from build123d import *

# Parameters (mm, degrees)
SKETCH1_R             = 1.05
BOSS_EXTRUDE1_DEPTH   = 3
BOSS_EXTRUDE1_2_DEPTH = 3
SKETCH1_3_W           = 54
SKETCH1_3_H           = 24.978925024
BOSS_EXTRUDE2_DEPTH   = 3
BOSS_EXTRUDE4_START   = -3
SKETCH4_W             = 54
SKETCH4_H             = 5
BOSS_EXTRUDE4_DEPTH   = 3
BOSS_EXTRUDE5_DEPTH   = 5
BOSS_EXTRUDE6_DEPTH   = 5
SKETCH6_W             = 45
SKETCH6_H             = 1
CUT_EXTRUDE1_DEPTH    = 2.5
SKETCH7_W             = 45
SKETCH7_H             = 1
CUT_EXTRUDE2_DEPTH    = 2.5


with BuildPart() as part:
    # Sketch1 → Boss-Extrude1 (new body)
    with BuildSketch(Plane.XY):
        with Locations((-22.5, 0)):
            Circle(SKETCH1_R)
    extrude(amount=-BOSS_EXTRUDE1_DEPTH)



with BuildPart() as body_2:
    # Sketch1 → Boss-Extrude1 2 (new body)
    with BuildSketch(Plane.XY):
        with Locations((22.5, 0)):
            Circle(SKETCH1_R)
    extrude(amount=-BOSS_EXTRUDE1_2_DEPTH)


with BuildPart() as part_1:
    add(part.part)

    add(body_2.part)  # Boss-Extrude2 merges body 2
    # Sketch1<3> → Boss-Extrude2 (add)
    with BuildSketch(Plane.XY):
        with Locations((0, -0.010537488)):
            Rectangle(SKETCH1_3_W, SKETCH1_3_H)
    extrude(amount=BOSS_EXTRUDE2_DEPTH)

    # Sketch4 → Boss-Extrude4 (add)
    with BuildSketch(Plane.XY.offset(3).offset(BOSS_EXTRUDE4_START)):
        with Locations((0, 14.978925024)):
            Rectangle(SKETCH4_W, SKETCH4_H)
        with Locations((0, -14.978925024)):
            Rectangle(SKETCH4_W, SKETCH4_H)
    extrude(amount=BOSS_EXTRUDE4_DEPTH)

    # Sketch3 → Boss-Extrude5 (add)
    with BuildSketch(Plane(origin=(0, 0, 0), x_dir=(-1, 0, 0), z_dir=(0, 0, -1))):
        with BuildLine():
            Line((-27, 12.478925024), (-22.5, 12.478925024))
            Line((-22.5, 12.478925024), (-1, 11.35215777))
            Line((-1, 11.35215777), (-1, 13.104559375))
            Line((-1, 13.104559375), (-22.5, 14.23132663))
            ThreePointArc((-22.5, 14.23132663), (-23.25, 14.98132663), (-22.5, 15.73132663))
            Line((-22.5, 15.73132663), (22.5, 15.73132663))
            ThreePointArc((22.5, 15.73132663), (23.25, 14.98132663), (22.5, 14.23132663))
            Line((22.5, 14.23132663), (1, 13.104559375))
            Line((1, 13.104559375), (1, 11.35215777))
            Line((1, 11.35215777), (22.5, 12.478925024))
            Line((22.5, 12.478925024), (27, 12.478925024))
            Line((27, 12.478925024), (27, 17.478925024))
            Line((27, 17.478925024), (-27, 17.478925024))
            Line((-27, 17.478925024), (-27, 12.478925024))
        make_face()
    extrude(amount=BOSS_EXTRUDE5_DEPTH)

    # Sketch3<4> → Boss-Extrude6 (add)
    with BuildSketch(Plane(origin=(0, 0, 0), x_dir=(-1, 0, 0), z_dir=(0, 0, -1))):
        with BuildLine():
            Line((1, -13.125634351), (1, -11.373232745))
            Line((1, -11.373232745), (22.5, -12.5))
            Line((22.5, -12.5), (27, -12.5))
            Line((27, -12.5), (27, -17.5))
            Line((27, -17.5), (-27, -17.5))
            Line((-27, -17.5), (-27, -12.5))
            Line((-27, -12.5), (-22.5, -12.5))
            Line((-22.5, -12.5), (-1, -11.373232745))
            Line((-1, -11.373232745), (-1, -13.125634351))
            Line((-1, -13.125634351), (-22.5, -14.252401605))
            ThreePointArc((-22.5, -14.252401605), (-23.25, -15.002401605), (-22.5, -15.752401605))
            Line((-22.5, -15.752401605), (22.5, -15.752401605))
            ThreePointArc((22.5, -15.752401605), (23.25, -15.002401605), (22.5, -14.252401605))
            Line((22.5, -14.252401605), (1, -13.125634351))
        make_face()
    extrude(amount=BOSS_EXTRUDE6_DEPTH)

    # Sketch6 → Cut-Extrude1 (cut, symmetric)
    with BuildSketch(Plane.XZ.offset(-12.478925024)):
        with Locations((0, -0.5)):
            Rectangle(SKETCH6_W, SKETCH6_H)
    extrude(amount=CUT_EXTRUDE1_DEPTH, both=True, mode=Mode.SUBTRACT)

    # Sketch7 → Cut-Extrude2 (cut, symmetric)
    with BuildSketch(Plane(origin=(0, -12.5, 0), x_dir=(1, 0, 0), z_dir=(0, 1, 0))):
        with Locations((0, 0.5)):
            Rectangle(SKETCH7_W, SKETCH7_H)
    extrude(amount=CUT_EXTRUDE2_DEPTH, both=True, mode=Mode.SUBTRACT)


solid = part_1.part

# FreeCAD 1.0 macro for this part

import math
import FreeCAD as App
import Part
import Sketcher
Q = App.Units.Quantity

doc = App.newDocument("Part")
body = doc.addObject("PartDesign::Body", "Body")

# Sketch on XY plane
sketch1 = body.newObject("Sketcher::SketchObject", "Sketch")
sketch1.AttachmentSupport = (doc.getObject("XY_Plane"), [""])
sketch1.MapMode = "FlatFace"
sketch1.addGeometry(Part.Circle(App.Vector(-22.5, 0, 0), App.Vector(0, 0, 1), 1.05), False)
sketch1.addConstraint(Sketcher.Constraint("PointOnObject", 0, 3, -1))
sketch1.addConstraint(Sketcher.Constraint("Diameter", 0, Q("2.1 mm")))
sketch1.addConstraint(Sketcher.Constraint("DistanceX", 0, 3, -1, 1, Q("22.5 mm")))
pad1 = body.newObject("PartDesign::Pad", "Pad")
pad1.Profile = sketch1
pad1.Length = 3
pad1.Reversed = True
body2 = doc.addObject("PartDesign::Body", "Body001")

# Sketch on XY plane
sketch2 = body2.newObject("Sketcher::SketchObject", "Sketch001")
sketch2.AttachmentSupport = (doc.getObject("XY_Plane001"), [""])
sketch2.MapMode = "FlatFace"
sketch2.addGeometry(Part.Circle(App.Vector(22.5, 0, 0), App.Vector(0, 0, 1), 1.05), False)
sketch2.addConstraint(Sketcher.Constraint("PointOnObject", 0, 3, -1))
sketch2.addConstraint(Sketcher.Constraint("Diameter", 0, Q("2.1 mm")))
sketch2.addConstraint(Sketcher.Constraint("DistanceX", -1, 1, 0, 3, Q("22.5 mm")))
pad2 = body2.newObject("PartDesign::Pad", "Pad001")
pad2.Profile = sketch2
pad2.Length = 3
pad2.Reversed = True
body.AllowCompound = True
doc.recompute()

boolean = body.newObject("PartDesign::Boolean", "Boolean")
boolean.Type = "Fuse"
boolean.addObjects([body2])

# Sketch on XY plane
sketch3 = body.newObject("Sketcher::SketchObject", "Sketch002")
sketch3.AttachmentSupport = (doc.getObject("XY_Plane"), [""])
sketch3.MapMode = "FlatFace"
sketch3.addGeometry(Part.LineSegment(App.Vector(-27, 12.478925, 0), App.Vector(-27, -12.5, 0)), False)
sketch3.addGeometry(Part.LineSegment(App.Vector(-27, -12.5, 0), App.Vector(27, -12.5, 0)), False)
sketch3.addGeometry(Part.LineSegment(App.Vector(27, -12.5, 0), App.Vector(27, 12.478925, 0)), False)
sketch3.addGeometry(Part.LineSegment(App.Vector(27, 12.478925, 0), App.Vector(-27, 12.478925, 0)), False)
sketch3.addConstraint(Sketcher.Constraint("Coincident", 0, 2, 1, 1))
sketch3.addConstraint(Sketcher.Constraint("Coincident", 1, 2, 2, 1))
sketch3.addConstraint(Sketcher.Constraint("Coincident", 2, 2, 3, 1))
sketch3.addConstraint(Sketcher.Constraint("Coincident", 3, 2, 0, 1))
sketch3.addConstraint(Sketcher.Constraint("Vertical", 0))
sketch3.addConstraint(Sketcher.Constraint("Horizontal", 1))
sketch3.addConstraint(Sketcher.Constraint("Vertical", 2))
sketch3.addConstraint(Sketcher.Constraint("Horizontal", 3))
sketch3.addConstraint(Sketcher.Constraint("DistanceX", 1, 1, 1, 2, Q("54 mm")))
sketch3.addConstraint(Sketcher.Constraint("DistanceX", 0, 2, -1, 1, Q("27 mm")))
sketch3.addConstraint(Sketcher.Constraint("DistanceY", 0, 2, -1, 1, Q("12.5 mm")))
sketch3.addConstraint(Sketcher.Constraint("DistanceY", 0, 2, 0, 1, Q("24.978925 mm")))
pad3 = body.newObject("PartDesign::Pad", "Pad002")
pad3.Profile = sketch3
pad3.Length = 3

# Sketch on XY plane
sketch4 = body.newObject("Sketcher::SketchObject", "Sketch003")
sketch4.AttachmentSupport = (doc.getObject("XY_Plane"), [""])
sketch4.MapMode = "FlatFace"
sketch4.addGeometry(Part.LineSegment(App.Vector(-27, 17.478925, 0), App.Vector(-27, 12.478925, 0)), False)
sketch4.addGeometry(Part.LineSegment(App.Vector(-27, 12.478925, 0), App.Vector(27, 12.478925, 0)), False)
sketch4.addGeometry(Part.LineSegment(App.Vector(27, 12.478925, 0), App.Vector(27, 17.478925, 0)), False)
sketch4.addGeometry(Part.LineSegment(App.Vector(27, 17.478925, 0), App.Vector(-27, 17.478925, 0)), False)
sketch4.addGeometry(Part.LineSegment(App.Vector(-27, -12.478925, 0), App.Vector(-27, -17.478925, 0)), False)
sketch4.addGeometry(Part.LineSegment(App.Vector(-27, -17.478925, 0), App.Vector(27, -17.478925, 0)), False)
sketch4.addGeometry(Part.LineSegment(App.Vector(27, -17.478925, 0), App.Vector(27, -12.478925, 0)), False)
sketch4.addGeometry(Part.LineSegment(App.Vector(27, -12.478925, 0), App.Vector(-27, -12.478925, 0)), False)
sketch4.addConstraint(Sketcher.Constraint("Coincident", 0, 2, 1, 1))
sketch4.addConstraint(Sketcher.Constraint("Coincident", 1, 2, 2, 1))
sketch4.addConstraint(Sketcher.Constraint("Coincident", 2, 2, 3, 1))
sketch4.addConstraint(Sketcher.Constraint("Coincident", 3, 2, 0, 1))
sketch4.addConstraint(Sketcher.Constraint("Coincident", 4, 2, 5, 1))
sketch4.addConstraint(Sketcher.Constraint("Coincident", 5, 2, 6, 1))
sketch4.addConstraint(Sketcher.Constraint("Coincident", 6, 2, 7, 1))
sketch4.addConstraint(Sketcher.Constraint("Coincident", 7, 2, 4, 1))
sketch4.addConstraint(Sketcher.Constraint("Vertical", 0))
sketch4.addConstraint(Sketcher.Constraint("Horizontal", 1))
sketch4.addConstraint(Sketcher.Constraint("Vertical", 2))
sketch4.addConstraint(Sketcher.Constraint("Horizontal", 3))
sketch4.addConstraint(Sketcher.Constraint("Vertical", 4))
sketch4.addConstraint(Sketcher.Constraint("Horizontal", 5))
sketch4.addConstraint(Sketcher.Constraint("Vertical", 6))
sketch4.addConstraint(Sketcher.Constraint("Horizontal", 7))
sketch4.addConstraint(Sketcher.Constraint("Symmetric", 2, 2, 4, 2, -1, 1))
sketch4.addConstraint(Sketcher.Constraint("Symmetric", 0, 2, 6, 2, -1, 1))
sketch4.addConstraint(Sketcher.Constraint("Vertical", 3, 2, 4, 2))
sketch4.addConstraint(Sketcher.Constraint("DistanceX", 1, 1, 1, 2, Q("54 mm")))
sketch4.addConstraint(Sketcher.Constraint("DistanceY", 0, 2, 0, 1, Q("5 mm")))
sketch4.addConstraint(Sketcher.Constraint("DistanceY", 4, 2, 0, 2, Q("29.95785 mm")))
pad4 = body.newObject("PartDesign::Pad", "Pad003")
pad4.Profile = sketch4
pad4.Length = 3

# Sketch on XY plane
sketch5 = body.newObject("Sketcher::SketchObject", "Sketch004")
sketch5.AttachmentSupport = (doc.getObject("XY_Plane"), [""])
sketch5.MapMode = "FlatFace"
sketch5.addGeometry(Part.LineSegment(App.Vector(27, 12.478925, 0), App.Vector(22.5, 12.478925, 0)), False)
sketch5.addGeometry(Part.LineSegment(App.Vector(22.5, 12.478925, 0), App.Vector(1, 11.352158, 0)), False)
sketch5.addGeometry(Part.LineSegment(App.Vector(1, 11.352158, 0), App.Vector(1, 13.104559, 0)), False)
sketch5.addGeometry(Part.LineSegment(App.Vector(1, 13.104559, 0), App.Vector(22.5, 14.231327, 0)), False)
sketch5.addGeometry(Part.ArcOfCircle(Part.Circle(App.Vector(22.5, 14.981327, 0), App.Vector(0, 0, 1), 0.75), math.radians(-90), math.radians(90)), False)
sketch5.addGeometry(Part.LineSegment(App.Vector(22.5, 15.731327, 0), App.Vector(-22.5, 15.731327, 0)), False)
sketch5.addGeometry(Part.ArcOfCircle(Part.Circle(App.Vector(-22.5, 14.981327, 0), App.Vector(0, 0, 1), 0.75), math.radians(90), math.radians(270)), False)
sketch5.addGeometry(Part.LineSegment(App.Vector(-22.5, 14.231327, 0), App.Vector(-1, 13.104559, 0)), False)
sketch5.addGeometry(Part.LineSegment(App.Vector(-1, 13.104559, 0), App.Vector(-1, 11.352158, 0)), False)
sketch5.addGeometry(Part.LineSegment(App.Vector(-1, 11.352158, 0), App.Vector(-22.5, 12.478925, 0)), False)
sketch5.addGeometry(Part.LineSegment(App.Vector(-22.5, 12.478925, 0), App.Vector(-27, 12.478925, 0)), False)
sketch5.addGeometry(Part.LineSegment(App.Vector(-27, 12.478925, 0), App.Vector(-27, 17.478925, 0)), False)
sketch5.addGeometry(Part.LineSegment(App.Vector(-27, 17.478925, 0), App.Vector(27, 17.478925, 0)), False)
sketch5.addGeometry(Part.LineSegment(App.Vector(27, 17.478925, 0), App.Vector(27, 12.478925, 0)), False)
sketch5.addConstraint(Sketcher.Constraint("Coincident", 0, 2, 1, 1))
sketch5.addConstraint(Sketcher.Constraint("Coincident", 1, 2, 2, 1))
sketch5.addConstraint(Sketcher.Constraint("Coincident", 2, 2, 3, 1))
sketch5.addConstraint(Sketcher.Constraint("Coincident", 3, 2, 4, 1))
sketch5.addConstraint(Sketcher.Constraint("Tangent", 4, 2, 5, 1))
sketch5.addConstraint(Sketcher.Constraint("Tangent", 5, 2, 6, 1))
sketch5.addConstraint(Sketcher.Constraint("Coincident", 6, 2, 7, 1))
sketch5.addConstraint(Sketcher.Constraint("Coincident", 7, 2, 8, 1))
sketch5.addConstraint(Sketcher.Constraint("Coincident", 8, 2, 9, 1))
sketch5.addConstraint(Sketcher.Constraint("Coincident", 9, 2, 10, 1))
sketch5.addConstraint(Sketcher.Constraint("Coincident", 10, 2, 11, 1))
sketch5.addConstraint(Sketcher.Constraint("Coincident", 11, 2, 12, 1))
sketch5.addConstraint(Sketcher.Constraint("Coincident", 12, 2, 13, 1))
sketch5.addConstraint(Sketcher.Constraint("Coincident", 13, 2, 0, 1))
sketch5.addConstraint(Sketcher.Constraint("Horizontal", 0))
sketch5.addConstraint(Sketcher.Constraint("Vertical", 2))
sketch5.addConstraint(Sketcher.Constraint("Horizontal", 5))
sketch5.addConstraint(Sketcher.Constraint("Vertical", 8))
sketch5.addConstraint(Sketcher.Constraint("Horizontal", 10))
sketch5.addConstraint(Sketcher.Constraint("Vertical", 11))
sketch5.addConstraint(Sketcher.Constraint("Horizontal", 12))
sketch5.addConstraint(Sketcher.Constraint("Vertical", 13))
sketch5.addConstraint(Sketcher.Constraint("Equal", 4, 6))
sketch5.addConstraint(Sketcher.Constraint("Symmetric", 2, 2, 7, 2, -2))
sketch5.addConstraint(Sketcher.Constraint("Symmetric", 0, 2, 9, 2, -2))
sketch5.addConstraint(Sketcher.Constraint("Parallel", 1, 3))
sketch5.addConstraint(Sketcher.Constraint("Parallel", 7, 9))
sketch5.addConstraint(Sketcher.Constraint("Horizontal", 1, 2, 8, 2))
sketch5.addConstraint(Sketcher.Constraint("Vertical", 4, 3, 0, 2))
sketch5.addConstraint(Sketcher.Constraint("Vertical", 0, 2, 3, 2))
sketch5.addConstraint(Sketcher.Constraint("Vertical", 5, 2, 6, 2))
sketch5.addConstraint(Sketcher.Constraint("Equal", 0, 10))
sketch5.addConstraint(Sketcher.Constraint("DistanceX", 5, 2, 5, 1, Q("45 mm")))
sketch5.addConstraint(Sketcher.Constraint("DistanceX", 12, 1, 12, 2, Q("54 mm")))
sketch5.addConstraint(Sketcher.Constraint("DistanceY", 11, 1, 11, 2, Q("5 mm")))
sketch5.addConstraint(Sketcher.Constraint("Angle", 1, Q("-177 deg")))
sketch5.addConstraint(Sketcher.Constraint("Radius", 4, Q("0.75 mm")))
sketch5.addConstraint(Sketcher.Constraint("DistanceX", -1, 1, 1, 2, Q("1 mm")))
sketch5.addConstraint(Sketcher.Constraint("DistanceY", 2, 1, 2, 2, Q("1.752402 mm")))
sketch5.addConstraint(Sketcher.Constraint("DistanceY", -1, 1, 2, 2, Q("13.104559 mm")))
pad5 = body.newObject("PartDesign::Pad", "Pad004")
pad5.Profile = sketch5
pad5.Length = 5
pad5.Reversed = True

# Sketch on XY plane
sketch6 = body.newObject("Sketcher::SketchObject", "Sketch005")
sketch6.AttachmentSupport = (doc.getObject("XY_Plane"), [""])
sketch6.MapMode = "FlatFace"
sketch6.addGeometry(Part.LineSegment(App.Vector(-1, -11.373233, 0), App.Vector(-1, -13.125634, 0)), False)
sketch6.addGeometry(Part.LineSegment(App.Vector(-1, -13.125634, 0), App.Vector(-22.5, -14.252402, 0)), False)
sketch6.addGeometry(Part.ArcOfCircle(Part.Circle(App.Vector(-22.5, -15.002402, 0), App.Vector(0, 0, 1), 0.75), math.radians(90), math.radians(270)), False)
sketch6.addGeometry(Part.LineSegment(App.Vector(-22.5, -15.752402, 0), App.Vector(22.5, -15.752402, 0)), False)
sketch6.addGeometry(Part.ArcOfCircle(Part.Circle(App.Vector(22.5, -15.002402, 0), App.Vector(0, 0, 1), 0.75), math.radians(-90), math.radians(90)), False)
sketch6.addGeometry(Part.LineSegment(App.Vector(22.5, -14.252402, 0), App.Vector(1, -13.125634, 0)), False)
sketch6.addGeometry(Part.LineSegment(App.Vector(1, -13.125634, 0), App.Vector(1, -11.373233, 0)), False)
sketch6.addGeometry(Part.LineSegment(App.Vector(1, -11.373233, 0), App.Vector(22.5, -12.5, 0)), False)
sketch6.addGeometry(Part.LineSegment(App.Vector(22.5, -12.5, 0), App.Vector(27, -12.5, 0)), False)
sketch6.addGeometry(Part.LineSegment(App.Vector(27, -12.5, 0), App.Vector(27, -17.5, 0)), False)
sketch6.addGeometry(Part.LineSegment(App.Vector(27, -17.5, 0), App.Vector(-27, -17.5, 0)), False)
sketch6.addGeometry(Part.LineSegment(App.Vector(-27, -17.5, 0), App.Vector(-27, -12.5, 0)), False)
sketch6.addGeometry(Part.LineSegment(App.Vector(-27, -12.5, 0), App.Vector(-22.5, -12.5, 0)), False)
sketch6.addGeometry(Part.LineSegment(App.Vector(-22.5, -12.5, 0), App.Vector(-1, -11.373233, 0)), False)
sketch6.addConstraint(Sketcher.Constraint("Coincident", 0, 2, 1, 1))
sketch6.addConstraint(Sketcher.Constraint("Coincident", 1, 2, 2, 1))
sketch6.addConstraint(Sketcher.Constraint("Tangent", 2, 2, 3, 1))
sketch6.addConstraint(Sketcher.Constraint("Tangent", 3, 2, 4, 1))
sketch6.addConstraint(Sketcher.Constraint("Coincident", 4, 2, 5, 1))
sketch6.addConstraint(Sketcher.Constraint("Coincident", 5, 2, 6, 1))
sketch6.addConstraint(Sketcher.Constraint("Coincident", 6, 2, 7, 1))
sketch6.addConstraint(Sketcher.Constraint("Coincident", 7, 2, 8, 1))
sketch6.addConstraint(Sketcher.Constraint("Coincident", 8, 2, 9, 1))
sketch6.addConstraint(Sketcher.Constraint("Coincident", 9, 2, 10, 1))
sketch6.addConstraint(Sketcher.Constraint("Coincident", 10, 2, 11, 1))
sketch6.addConstraint(Sketcher.Constraint("Coincident", 11, 2, 12, 1))
sketch6.addConstraint(Sketcher.Constraint("Coincident", 12, 2, 13, 1))
sketch6.addConstraint(Sketcher.Constraint("Coincident", 13, 2, 0, 1))
sketch6.addConstraint(Sketcher.Constraint("Vertical", 0))
sketch6.addConstraint(Sketcher.Constraint("Horizontal", 3))
sketch6.addConstraint(Sketcher.Constraint("Vertical", 6))
sketch6.addConstraint(Sketcher.Constraint("Horizontal", 8))
sketch6.addConstraint(Sketcher.Constraint("Vertical", 9))
sketch6.addConstraint(Sketcher.Constraint("Horizontal", 10))
sketch6.addConstraint(Sketcher.Constraint("Vertical", 11))
sketch6.addConstraint(Sketcher.Constraint("Horizontal", 12))
sketch6.addConstraint(Sketcher.Constraint("Equal", 2, 4))
sketch6.addConstraint(Sketcher.Constraint("Symmetric", 0, 2, 5, 2, -2))
sketch6.addConstraint(Sketcher.Constraint("Symmetric", 8, 2, 11, 2, -2))
sketch6.addConstraint(Sketcher.Constraint("Parallel", 5, 7))
sketch6.addConstraint(Sketcher.Constraint("Parallel", 1, 13))
sketch6.addConstraint(Sketcher.Constraint("Horizontal", 6, 2, 13, 2))
sketch6.addConstraint(Sketcher.Constraint("Vertical", 2, 3, 1, 2))
sketch6.addConstraint(Sketcher.Constraint("Vertical", 3, 2, 4, 2))
sketch6.addConstraint(Sketcher.Constraint("Vertical", 4, 2, 7, 2))
sketch6.addConstraint(Sketcher.Constraint("Equal", 8, 12))
sketch6.addConstraint(Sketcher.Constraint("DistanceX", 3, 1, 3, 2, Q("45 mm")))
sketch6.addConstraint(Sketcher.Constraint("DistanceX", 10, 2, 10, 1, Q("54 mm")))
sketch6.addConstraint(Sketcher.Constraint("DistanceY", 9, 2, 9, 1, Q("5 mm")))
sketch6.addConstraint(Sketcher.Constraint("Angle", 1, Q("-177 deg")))
sketch6.addConstraint(Sketcher.Constraint("Radius", 2, Q("0.75 mm")))
sketch6.addConstraint(Sketcher.Constraint("DistanceX", 0, 2, -1, 1, Q("1 mm")))
sketch6.addConstraint(Sketcher.Constraint("DistanceY", 7, 2, -1, 1, Q("12.5 mm")))
sketch6.addConstraint(Sketcher.Constraint("DistanceY", 0, 2, 0, 1, Q("1.752402 mm")))
pad6 = body.newObject("PartDesign::Pad", "Pad005")
pad6.Profile = sketch6
pad6.Length = 5
pad6.Reversed = True

# Sketch on XZ plane
sketch7 = body.newObject("Sketcher::SketchObject", "Sketch006")
sketch7.AttachmentSupport = (doc.getObject("XZ_Plane"), [""])
sketch7.MapMode = "FlatFace"
sketch7.AttachmentOffset = App.Placement(App.Vector(0, 0, -12.478925), App.Rotation())
sketch7.addGeometry(Part.LineSegment(App.Vector(-22.5, 0, 0), App.Vector(-22.5, -1, 0)), False)
sketch7.addGeometry(Part.LineSegment(App.Vector(-22.5, -1, 0), App.Vector(22.5, -1, 0)), False)
sketch7.addGeometry(Part.LineSegment(App.Vector(22.5, -1, 0), App.Vector(22.5, 0, 0)), False)
sketch7.addGeometry(Part.LineSegment(App.Vector(22.5, 0, 0), App.Vector(-22.5, 0, 0)), False)
sketch7.addConstraint(Sketcher.Constraint("Coincident", 0, 2, 1, 1))
sketch7.addConstraint(Sketcher.Constraint("Coincident", 1, 2, 2, 1))
sketch7.addConstraint(Sketcher.Constraint("Coincident", 2, 2, 3, 1))
sketch7.addConstraint(Sketcher.Constraint("Coincident", 3, 2, 0, 1))
sketch7.addConstraint(Sketcher.Constraint("Vertical", 0))
sketch7.addConstraint(Sketcher.Constraint("Horizontal", 1))
sketch7.addConstraint(Sketcher.Constraint("Vertical", 2))
sketch7.addConstraint(Sketcher.Constraint("Horizontal", 3))
sketch7.addConstraint(Sketcher.Constraint("Symmetric", 2, 2, 3, 2, -1, 1))
sketch7.addConstraint(Sketcher.Constraint("DistanceX", 1, 1, 1, 2, Q("45 mm")))
sketch7.addConstraint(Sketcher.Constraint("DistanceY", 0, 2, 0, 1, Q("1 mm")))
pocket1 = body.newObject("PartDesign::Pocket", "Pocket")
pocket1.Profile = sketch7
pocket1.Length = 5
pocket1.Midplane = True

# Sketch on XZ plane
sketch8 = body.newObject("Sketcher::SketchObject", "Sketch007")
sketch8.AttachmentSupport = (doc.getObject("XZ_Plane"), [""])
sketch8.MapMode = "FlatFace"
sketch8.AttachmentOffset = App.Placement(App.Vector(0, 0, 12.5), App.Rotation())
sketch8.addGeometry(Part.LineSegment(App.Vector(-22.5, -1, 0), App.Vector(-22.5, 0, 0)), False)
sketch8.addGeometry(Part.LineSegment(App.Vector(-22.5, 0, 0), App.Vector(22.5, 0, 0)), False)
sketch8.addGeometry(Part.LineSegment(App.Vector(22.5, 0, 0), App.Vector(22.5, -1, 0)), False)
sketch8.addGeometry(Part.LineSegment(App.Vector(22.5, -1, 0), App.Vector(-22.5, -1, 0)), False)
sketch8.addConstraint(Sketcher.Constraint("Coincident", 0, 2, 1, 1))
sketch8.addConstraint(Sketcher.Constraint("Coincident", 1, 2, 2, 1))
sketch8.addConstraint(Sketcher.Constraint("Coincident", 2, 2, 3, 1))
sketch8.addConstraint(Sketcher.Constraint("Coincident", 3, 2, 0, 1))
sketch8.addConstraint(Sketcher.Constraint("Vertical", 0))
sketch8.addConstraint(Sketcher.Constraint("Horizontal", 1))
sketch8.addConstraint(Sketcher.Constraint("Vertical", 2))
sketch8.addConstraint(Sketcher.Constraint("Horizontal", 3))
sketch8.addConstraint(Sketcher.Constraint("Symmetric", 0, 2, 1, 2, -1, 1))
sketch8.addConstraint(Sketcher.Constraint("DistanceX", 1, 1, 1, 2, Q("45 mm")))
sketch8.addConstraint(Sketcher.Constraint("DistanceY", 0, 1, 0, 2, Q("1 mm")))
pocket2 = body.newObject("PartDesign::Pocket", "Pocket001")
pocket2.Profile = sketch8
pocket2.Length = 5
pocket2.Midplane = True

doc.recompute()
